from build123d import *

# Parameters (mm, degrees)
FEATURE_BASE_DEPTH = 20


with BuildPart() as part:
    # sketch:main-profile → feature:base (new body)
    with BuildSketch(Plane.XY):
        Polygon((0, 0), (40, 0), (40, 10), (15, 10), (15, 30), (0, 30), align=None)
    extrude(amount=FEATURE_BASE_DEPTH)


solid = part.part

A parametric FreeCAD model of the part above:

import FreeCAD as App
import Part
import Sketcher
from FreeCAD import Vector
Q = App.Units.Quantity


def add_polygon(sketch, points):
    """Adds a closed chain of lines whose ends are joined by coincident constraints."""
    first, n = sketch.GeometryCount, len(points)
    for a, b in zip(points, points[1:] + points[:1]):
        sketch.addGeometry(Part.LineSegment(App.Vector(*a, 0), App.Vector(*b, 0)), False)
    for i in range(n):
        sketch.addConstraint(Sketcher.Constraint("Coincident", first + i, 2, first + (i + 1) % n, 1))

doc = App.newDocument("Part")
body = doc.addObject("PartDesign::Body", "Body")

# Sketch on XY plane
sketch1 = body.newObject("Sketcher::SketchObject", "Sketch")
sketch1.AttachmentSupport = (doc.getObject("XY_Plane"), [""])
sketch1.MapMode = "FlatFace"
add_polygon(sketch1, [(0, 0), (40, 0), (40, 10), (15, 10), (15, 30), (0, 30)])  # lines 0-5
sketch1.addConstraint([
    Sketcher.Constraint("Horizontal", 0),
    Sketcher.Constraint("Vertical", 1),
    Sketcher.Constraint("Horizontal", 2),
    Sketcher.Constraint("Vertical", 3),
    Sketcher.Constraint("Horizontal", 4),
    Sketcher.Constraint("Vertical", 5),
    Sketcher.Constraint("Coincident", 5, 2, -1, 1),
    Sketcher.Constraint("DistanceX", 0, 1, 0, 2, Q("40 mm")),
    Sketcher.Constraint("DistanceX", 2, 2, 2, 1, Q("25 mm")),
    Sketcher.Constraint("DistanceY", 1, 1, 1, 2, Q("10 mm")),
    Sketcher.Constraint("DistanceY", 3, 1, 3, 2, Q("20 mm")),
])
pad1 = body.newObject("PartDesign::Pad", "Pad")
pad1.Profile = sketch1
pad1.Length = 20

doc.recompute()
